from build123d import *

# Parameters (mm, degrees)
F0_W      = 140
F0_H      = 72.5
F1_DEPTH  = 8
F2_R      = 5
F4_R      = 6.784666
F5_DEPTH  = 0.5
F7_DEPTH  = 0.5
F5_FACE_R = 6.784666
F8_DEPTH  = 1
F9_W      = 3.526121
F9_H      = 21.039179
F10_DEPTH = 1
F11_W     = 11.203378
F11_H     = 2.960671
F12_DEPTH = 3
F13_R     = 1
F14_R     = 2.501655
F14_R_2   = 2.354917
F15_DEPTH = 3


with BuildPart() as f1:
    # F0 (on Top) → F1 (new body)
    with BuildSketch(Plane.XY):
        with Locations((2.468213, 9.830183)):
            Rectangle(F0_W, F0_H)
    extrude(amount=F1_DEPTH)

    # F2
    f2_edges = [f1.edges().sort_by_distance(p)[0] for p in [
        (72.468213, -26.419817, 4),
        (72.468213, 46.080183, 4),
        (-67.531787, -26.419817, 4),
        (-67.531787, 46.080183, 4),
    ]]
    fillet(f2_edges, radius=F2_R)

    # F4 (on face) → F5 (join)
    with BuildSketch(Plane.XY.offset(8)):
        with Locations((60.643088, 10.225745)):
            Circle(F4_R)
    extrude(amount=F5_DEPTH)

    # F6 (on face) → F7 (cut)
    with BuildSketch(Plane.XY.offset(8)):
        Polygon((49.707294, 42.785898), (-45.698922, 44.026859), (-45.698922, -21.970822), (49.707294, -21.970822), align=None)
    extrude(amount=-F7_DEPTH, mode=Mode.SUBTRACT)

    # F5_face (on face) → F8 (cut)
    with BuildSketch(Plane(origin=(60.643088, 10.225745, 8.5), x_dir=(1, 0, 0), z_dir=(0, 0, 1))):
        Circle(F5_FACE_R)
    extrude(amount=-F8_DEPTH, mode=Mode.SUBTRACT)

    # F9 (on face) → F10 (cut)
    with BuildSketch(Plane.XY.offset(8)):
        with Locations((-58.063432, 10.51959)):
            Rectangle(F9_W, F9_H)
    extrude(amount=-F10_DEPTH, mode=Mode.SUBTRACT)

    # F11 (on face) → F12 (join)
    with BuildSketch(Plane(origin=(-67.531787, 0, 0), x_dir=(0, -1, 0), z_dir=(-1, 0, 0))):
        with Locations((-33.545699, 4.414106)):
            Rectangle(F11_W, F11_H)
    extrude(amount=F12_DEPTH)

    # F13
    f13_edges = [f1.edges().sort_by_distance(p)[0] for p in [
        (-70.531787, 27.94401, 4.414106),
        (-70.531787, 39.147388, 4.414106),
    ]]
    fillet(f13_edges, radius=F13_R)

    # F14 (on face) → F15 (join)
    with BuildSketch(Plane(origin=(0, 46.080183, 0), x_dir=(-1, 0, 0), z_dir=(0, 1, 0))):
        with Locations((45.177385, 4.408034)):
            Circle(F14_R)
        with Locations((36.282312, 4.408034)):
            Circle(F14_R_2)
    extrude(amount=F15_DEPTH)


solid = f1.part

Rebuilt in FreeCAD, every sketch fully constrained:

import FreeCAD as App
import Part
import Sketcher
Q = App.Units.Quantity


def edges_at(feature, points):
    """Names of the edges that pass closest to the given points."""
    edges = feature.Shape.Edges
    near = lambda p: min(range(len(edges)), key=lambda i: edges[i].distToShape(Part.Vertex(*p))[0])
    return sorted({f"Edge{near(p) + 1}" for p in points})


def add_polygon(sketch, points):
    """Adds a closed chain of lines whose ends are joined by coincident constraints."""
    first, n = sketch.GeometryCount, len(points)
    for a, b in zip(points, points[1:] + points[:1]):
        sketch.addGeometry(Part.LineSegment(App.Vector(*a, 0), App.Vector(*b, 0)), False)
    for i in range(n):
        sketch.addConstraint(Sketcher.Constraint("Coincident", first + i, 2, first + (i + 1) % n, 1))

doc = App.newDocument("Part")
body = doc.addObject("PartDesign::Body", "Body")

# Sketch on XY plane
sketch1 = doc.addObject("Sketcher::SketchObject", "Sketch")
body.addObject(sketch1)
sketch1.AttachmentSupport = (doc.XY_Plane, [""])
sketch1.MapMode = "FlatFace"
add_polygon(sketch1, [(-68, 46), (-68, -26), (72, -26), (72, 46)])  # lines 0-3
sketch1.addConstraint([
    Sketcher.Constraint("Vertical", 0),
    Sketcher.Constraint("Horizontal", 1),
    Sketcher.Constraint("Vertical", 2),
    Sketcher.Constraint("Horizontal", 3),
    Sketcher.Constraint("DistanceX", 1, 1, 1, 2, Q("140 mm")),
    Sketcher.Constraint("DistanceY", 0, 2, 0, 1, Q("72.5 mm")),
    Sketcher.Constraint("DistanceX", 0, 2, -1, 1, Q("67.531787 mm")),
    Sketcher.Constraint("DistanceY", 0, 2, -1, 1, Q("26.419817 mm")),
])
pad1 = doc.addObject("PartDesign::Pad", "Pad")
body.addObject(pad1)
pad1.Profile = sketch1
pad1.Length = 8
doc.recompute()

fillet = doc.addObject("PartDesign::Fillet", "Fillet")
body.addObject(fillet)
fillet.Base = (pad1, edges_at(pad1, [
    (72.468, -26.42, 4),
    (72.468, 46.08, 4),
    (-67.532, -26.42, 4),
    (-67.532, 46.08, 4),
]))
fillet.Radius = 5

# Sketch on XY plane
sketch2 = doc.addObject("Sketcher::SketchObject", "Sketch001")
body.addObject(sketch2)
sketch2.AttachmentSupport = (doc.XY_Plane, [""])
sketch2.MapMode = "FlatFace"
sketch2.AttachmentOffset = App.Placement(App.Vector(0, 0, 8), App.Rotation())
sketch2.addGeometry(Part.Circle(App.Vector(61, 10, 0), App.Vector(0, 0, 1), 7), False)
sketch2.addConstraint([
    Sketcher.Constraint("Diameter", 0, Q("13.569332 mm")),
    Sketcher.Constraint("DistanceX", -1, 1, 0, 3, Q("60.643088 mm")),
    Sketcher.Constraint("DistanceY", -1, 1, 0, 3, Q("10.225745 mm")),
])
pad2 = doc.addObject("PartDesign::Pad", "Pad001")
body.addObject(pad2)
pad2.Profile = sketch2
pad2.Length = 0.5

# Sketch on XY plane
sketch3 = doc.addObject("Sketcher::SketchObject", "Sketch002")
body.addObject(sketch3)
sketch3.AttachmentSupport = (doc.XY_Plane, [""])
sketch3.MapMode = "FlatFace"
sketch3.AttachmentOffset = App.Placement(App.Vector(0, 0, 8), App.Rotation())
add_polygon(sketch3, [(50, 43), (-46, 44), (-46, -22), (50, -22)])  # lines 0-3
sketch3.addConstraint([
    Sketcher.Constraint("Vertical", 1),
    Sketcher.Constraint("Horizontal", 2),
    Sketcher.Constraint("Vertical", 3),
    Sketcher.Constraint("DistanceY", 1, 2, 1, 1, Q("65.997681 mm")),
    Sketcher.Constraint("DistanceY", 3, 1, 3, 2, Q("64.75672 mm")),
    Sketcher.Constraint("DistanceY", -1, 1, 3, 2, Q("42.785898 mm")),
    Sketcher.Constraint("DistanceX", 2, 1, 2, 2, Q("95.406216 mm")),
    Sketcher.Constraint("DistanceX", 0, 2, -1, 1, Q("45.698922 mm")),
])
pocket1 = doc.addObject("PartDesign::Pocket", "Pocket")
body.addObject(pocket1)
pocket1.Profile = sketch3
pocket1.Length = 0.5

# Sketch on XY plane
sketch4 = doc.addObject("Sketcher::SketchObject", "Sketch003")
body.addObject(sketch4)
sketch4.AttachmentSupport = (doc.XY_Plane, [""])
sketch4.MapMode = "FlatFace"
sketch4.AttachmentOffset = App.Placement(App.Vector(0, 0, 8.5), App.Rotation())
sketch4.addGeometry(Part.Circle(App.Vector(61, 10, 0), App.Vector(0, 0, 1), 7), False)
sketch4.addConstraint([
    Sketcher.Constraint("Diameter", 0, Q("13.569332 mm")),
    Sketcher.Constraint("DistanceX", -1, 1, 0, 3, Q("60.643088 mm")),
    Sketcher.Constraint("DistanceY", -1, 1, 0, 3, Q("10.225745 mm")),
])
pocket2 = doc.addObject("PartDesign::Pocket", "Pocket001")
body.addObject(pocket2)
pocket2.Profile = sketch4
pocket2.Length = 1

# Sketch on XY plane
sketch5 = doc.addObject("Sketcher::SketchObject", "Sketch004")
body.addObject(sketch5)
sketch5.AttachmentSupport = (doc.XY_Plane, [""])
sketch5.MapMode = "FlatFace"
sketch5.AttachmentOffset = App.Placement(App.Vector(0, 0, 8), App.Rotation())
add_polygon(sketch5, [(-59.8, 21), (-59.8, 0), (-56.3, 0), (-56.3, 21)])  # lines 0-3
sketch5.addConstraint([
    Sketcher.Constraint("Vertical", 0),
    Sketcher.Constraint("Horizontal", 1),
    Sketcher.Constraint("Vertical", 2),
    Sketcher.Constraint("Horizontal", 3),
    Sketcher.Constraint("PointOnObject", 0, 2, -1),
    Sketcher.Constraint("DistanceX", 1, 1, 1, 2, Q("3.526121 mm")),
    Sketcher.Constraint("DistanceY", 0, 2, 0, 1, Q("21.039179 mm")),
    Sketcher.Constraint("DistanceX", 1, 2, -1, 1, Q("56.300371 mm")),
])
pocket3 = doc.addObject("PartDesign::Pocket", "Pocket002")
body.addObject(pocket3)
pocket3.Profile = sketch5
pocket3.Length = 1

# Sketch on YZ plane
sketch6 = doc.addObject("Sketcher::SketchObject", "Sketch005")
body.addObject(sketch6)
sketch6.AttachmentSupport = (doc.YZ_Plane, [""])
sketch6.MapMode = "FlatFace"
sketch6.AttachmentOffset = App.Placement(App.Vector(0, 0, -67.531787), App.Rotation())
add_polygon(sketch6, [(39.1, 5.9), (39.1, 2.9), (27.9, 2.9), (27.9, 5.9)])  # lines 0-3
sketch6.addConstraint([
    Sketcher.Constraint("Vertical", 0),
    Sketcher.Constraint("Horizontal", 1),
    Sketcher.Constraint("Vertical", 2),
    Sketcher.Constraint("Horizontal", 3),
    Sketcher.Constraint("DistanceX", 1, 2, 1, 1, Q("11.203378 mm")),
    Sketcher.Constraint("DistanceY", 0, 2, 0, 1, Q("2.960671 mm")),
    Sketcher.Constraint("DistanceY", -1, 1, 0, 2, Q("2.933771 mm")),
    Sketcher.Constraint("DistanceX", -1, 1, 1, 2, Q("27.94401 mm")),
])
pad3 = doc.addObject("PartDesign::Pad", "Pad002")
body.addObject(pad3)
pad3.Profile = sketch6
pad3.Length = 3
pad3.Reversed = True
doc.recompute()

fillet2 = doc.addObject("PartDesign::Fillet", "Fillet001")
body.addObject(fillet2)
fillet2.Base = (pad3, edges_at(pad3, [(-70.532, 27.944, 4.414), (-70.532, 39.147, 4.414)]))
fillet2.Radius = 1

# Sketch on XZ plane
sketch7 = doc.addObject("Sketcher::SketchObject", "Sketch006")
body.addObject(sketch7)
sketch7.AttachmentSupport = (doc.XZ_Plane, [""])
sketch7.MapMode = "FlatFace"
sketch7.AttachmentOffset = App.Placement(App.Vector(0, 0, -46.080183), App.Rotation())
sketch7.addGeometry([
    Part.Circle(App.Vector(-45.2, 4.4, 0), App.Vector(0, 0, 1), 2.5),
    Part.Circle(App.Vector(-36.3, 4.4, 0), App.Vector(0, 0, 1), 2.4),
], False)
sketch7.addConstraint([
    Sketcher.Constraint("Horizontal", 0, 3, 1, 3),
    Sketcher.Constraint("Diameter", 0, Q("5.00331 mm")),
    Sketcher.Constraint("Diameter", 1, Q("4.709834 mm")),
    Sketcher.Constraint("DistanceX", 1, 3, -1, 1, Q("36.282312 mm")),
    Sketcher.Constraint("DistanceX", 0, 3, -1, 1, Q("45.177385 mm")),
    Sketcher.Constraint("DistanceY", -1, 1, 0, 3, Q("4.408034 mm")),
])
pad4 = doc.addObject("PartDesign::Pad", "Pad003")
body.addObject(pad4)
pad4.Profile = sketch7
pad4.Length = 3
pad4.Reversed = True

doc.recompute()
